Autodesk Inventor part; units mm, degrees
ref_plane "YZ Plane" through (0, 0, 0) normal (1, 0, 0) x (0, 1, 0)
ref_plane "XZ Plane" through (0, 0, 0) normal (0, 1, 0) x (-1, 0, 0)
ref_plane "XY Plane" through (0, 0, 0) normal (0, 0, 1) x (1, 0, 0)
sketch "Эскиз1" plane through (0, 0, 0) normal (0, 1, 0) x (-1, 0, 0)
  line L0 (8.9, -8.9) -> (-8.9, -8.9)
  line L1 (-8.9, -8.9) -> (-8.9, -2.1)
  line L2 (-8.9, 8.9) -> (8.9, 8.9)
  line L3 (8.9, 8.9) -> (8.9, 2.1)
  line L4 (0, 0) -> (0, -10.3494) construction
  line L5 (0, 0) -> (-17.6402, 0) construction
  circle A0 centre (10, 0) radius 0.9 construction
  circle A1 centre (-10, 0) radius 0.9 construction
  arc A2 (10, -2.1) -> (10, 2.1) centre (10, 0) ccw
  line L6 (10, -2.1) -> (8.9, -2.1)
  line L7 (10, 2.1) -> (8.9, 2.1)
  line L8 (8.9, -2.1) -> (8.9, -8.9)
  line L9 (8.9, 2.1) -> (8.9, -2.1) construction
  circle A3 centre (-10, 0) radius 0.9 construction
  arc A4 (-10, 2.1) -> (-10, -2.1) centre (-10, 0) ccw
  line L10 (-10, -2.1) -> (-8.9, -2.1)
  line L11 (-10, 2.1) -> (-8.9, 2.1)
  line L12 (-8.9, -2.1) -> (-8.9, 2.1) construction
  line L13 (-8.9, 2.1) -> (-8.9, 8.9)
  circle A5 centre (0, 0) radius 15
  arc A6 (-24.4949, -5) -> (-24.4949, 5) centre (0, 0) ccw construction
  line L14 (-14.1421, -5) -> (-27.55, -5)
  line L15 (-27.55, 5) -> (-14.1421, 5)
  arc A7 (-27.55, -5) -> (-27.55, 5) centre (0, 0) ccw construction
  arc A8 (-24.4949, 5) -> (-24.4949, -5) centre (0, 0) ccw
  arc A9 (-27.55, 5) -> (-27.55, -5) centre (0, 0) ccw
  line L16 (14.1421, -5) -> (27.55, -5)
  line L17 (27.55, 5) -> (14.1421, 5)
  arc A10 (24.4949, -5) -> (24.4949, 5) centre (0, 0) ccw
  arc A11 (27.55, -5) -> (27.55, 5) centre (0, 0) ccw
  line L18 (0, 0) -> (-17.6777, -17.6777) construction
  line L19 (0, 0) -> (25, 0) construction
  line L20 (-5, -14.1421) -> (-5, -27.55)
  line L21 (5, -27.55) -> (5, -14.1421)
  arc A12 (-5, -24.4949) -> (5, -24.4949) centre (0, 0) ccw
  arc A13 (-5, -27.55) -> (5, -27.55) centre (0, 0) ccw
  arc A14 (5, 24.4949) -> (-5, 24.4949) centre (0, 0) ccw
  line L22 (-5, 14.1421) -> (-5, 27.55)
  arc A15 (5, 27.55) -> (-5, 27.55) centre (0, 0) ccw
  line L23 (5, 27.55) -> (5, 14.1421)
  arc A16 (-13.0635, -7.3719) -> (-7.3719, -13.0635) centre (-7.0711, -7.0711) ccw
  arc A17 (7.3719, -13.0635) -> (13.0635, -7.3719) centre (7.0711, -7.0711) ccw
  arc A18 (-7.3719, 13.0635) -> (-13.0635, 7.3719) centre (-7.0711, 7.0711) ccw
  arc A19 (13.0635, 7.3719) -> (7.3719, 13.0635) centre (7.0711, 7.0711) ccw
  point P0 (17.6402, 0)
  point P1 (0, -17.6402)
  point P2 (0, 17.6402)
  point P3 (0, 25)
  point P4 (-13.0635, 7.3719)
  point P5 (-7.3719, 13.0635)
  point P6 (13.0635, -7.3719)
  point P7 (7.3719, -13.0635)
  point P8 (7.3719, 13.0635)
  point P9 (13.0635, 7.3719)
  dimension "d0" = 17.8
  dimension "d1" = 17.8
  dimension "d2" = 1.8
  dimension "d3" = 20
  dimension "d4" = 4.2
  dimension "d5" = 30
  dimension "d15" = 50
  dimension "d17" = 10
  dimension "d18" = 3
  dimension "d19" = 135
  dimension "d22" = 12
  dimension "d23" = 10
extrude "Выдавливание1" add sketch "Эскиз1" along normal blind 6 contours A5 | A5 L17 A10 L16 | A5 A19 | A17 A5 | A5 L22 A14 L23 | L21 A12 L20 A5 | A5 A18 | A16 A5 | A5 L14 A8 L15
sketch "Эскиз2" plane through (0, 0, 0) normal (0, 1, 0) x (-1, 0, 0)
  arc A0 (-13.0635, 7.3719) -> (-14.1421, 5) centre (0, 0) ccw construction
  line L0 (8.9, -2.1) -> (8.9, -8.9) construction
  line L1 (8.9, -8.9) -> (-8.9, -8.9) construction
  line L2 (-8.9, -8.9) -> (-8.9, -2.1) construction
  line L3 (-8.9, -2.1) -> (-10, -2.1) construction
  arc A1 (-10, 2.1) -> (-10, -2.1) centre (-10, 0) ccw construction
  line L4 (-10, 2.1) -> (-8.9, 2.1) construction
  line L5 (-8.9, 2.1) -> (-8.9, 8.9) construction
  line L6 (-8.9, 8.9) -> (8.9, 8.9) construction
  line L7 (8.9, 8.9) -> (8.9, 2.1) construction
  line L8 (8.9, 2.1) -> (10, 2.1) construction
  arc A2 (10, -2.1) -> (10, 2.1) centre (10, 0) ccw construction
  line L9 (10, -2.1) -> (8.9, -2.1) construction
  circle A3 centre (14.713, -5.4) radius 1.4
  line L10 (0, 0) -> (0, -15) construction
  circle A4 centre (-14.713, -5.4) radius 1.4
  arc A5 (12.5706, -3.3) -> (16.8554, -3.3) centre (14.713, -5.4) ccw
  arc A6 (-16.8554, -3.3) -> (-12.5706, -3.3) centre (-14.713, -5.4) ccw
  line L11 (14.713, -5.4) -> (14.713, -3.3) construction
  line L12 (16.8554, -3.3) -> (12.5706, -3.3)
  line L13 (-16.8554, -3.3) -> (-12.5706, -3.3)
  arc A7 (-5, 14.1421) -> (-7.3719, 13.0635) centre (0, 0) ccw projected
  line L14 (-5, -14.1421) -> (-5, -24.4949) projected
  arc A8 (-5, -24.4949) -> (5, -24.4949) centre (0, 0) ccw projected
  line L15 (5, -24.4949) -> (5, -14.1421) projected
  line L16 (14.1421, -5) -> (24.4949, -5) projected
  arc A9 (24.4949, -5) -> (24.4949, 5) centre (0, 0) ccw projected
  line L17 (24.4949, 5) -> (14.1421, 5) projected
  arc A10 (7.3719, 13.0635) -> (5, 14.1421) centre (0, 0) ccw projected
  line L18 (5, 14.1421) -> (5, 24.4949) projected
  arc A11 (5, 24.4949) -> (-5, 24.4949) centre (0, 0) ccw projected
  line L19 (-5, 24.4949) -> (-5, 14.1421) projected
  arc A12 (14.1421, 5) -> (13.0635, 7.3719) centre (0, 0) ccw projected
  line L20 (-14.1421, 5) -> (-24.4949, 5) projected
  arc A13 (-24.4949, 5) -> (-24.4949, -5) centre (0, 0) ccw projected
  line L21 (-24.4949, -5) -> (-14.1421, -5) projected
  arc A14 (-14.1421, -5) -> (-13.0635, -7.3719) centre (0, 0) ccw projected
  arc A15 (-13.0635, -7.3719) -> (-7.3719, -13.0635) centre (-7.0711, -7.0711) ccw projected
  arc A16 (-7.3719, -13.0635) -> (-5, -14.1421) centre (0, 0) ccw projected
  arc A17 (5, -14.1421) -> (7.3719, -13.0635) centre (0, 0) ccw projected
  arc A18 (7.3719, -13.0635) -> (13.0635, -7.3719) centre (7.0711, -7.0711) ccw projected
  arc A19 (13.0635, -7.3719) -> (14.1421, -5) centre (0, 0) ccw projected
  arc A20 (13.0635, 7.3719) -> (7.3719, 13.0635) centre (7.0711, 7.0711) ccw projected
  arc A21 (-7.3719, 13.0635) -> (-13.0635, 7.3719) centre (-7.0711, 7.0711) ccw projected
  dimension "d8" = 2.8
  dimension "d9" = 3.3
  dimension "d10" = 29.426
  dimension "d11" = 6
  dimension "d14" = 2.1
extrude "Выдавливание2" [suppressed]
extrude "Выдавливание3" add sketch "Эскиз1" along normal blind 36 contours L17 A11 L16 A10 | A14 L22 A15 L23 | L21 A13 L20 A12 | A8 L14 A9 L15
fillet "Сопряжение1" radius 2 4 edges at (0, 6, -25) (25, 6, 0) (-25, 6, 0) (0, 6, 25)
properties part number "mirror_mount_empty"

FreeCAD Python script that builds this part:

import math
import FreeCAD as App
import Part
import Sketcher
from FreeCAD import Vector


def edges_at(feature, points):
    """Names of the edges that pass closest to the given points."""
    edges = feature.Shape.Edges
    near = lambda p: min(range(len(edges)), key=lambda i: edges[i].distToShape(Part.Vertex(*p))[0])
    return sorted({f"Edge{near(p) + 1}" for p in points})

doc = App.newDocument("Part")
params = doc.addObject("Spreadsheet::Sheet", "Params")
for row, (alias, value) in enumerate([
    ("sketch1_radius", "15 mm"),
    ("sketch1_radius2", "25 mm"),
    ("sketch1_radius3", "6 mm"),
    ("sketch1_radius4", "2.1 mm"),
    ("sketch1_width", "17.8 mm"),
    ("pad1_length", "6 mm"),
    ("sketch2_radius", "25 mm"),
    ("sketch2_radius2", "28 mm"),
    ("pad2_length", "36 mm"),
    ("fillet_radius", "2 mm"),
], start=1):
    params.set(f"A{row}", alias)
    params.set(f"B{row}", "=" + value)
    params.setAlias(f"B{row}", alias)

body = doc.addObject("PartDesign::Body", "Body")

# Sketch on XZ plane
sketch1 = body.newObject("Sketcher::SketchObject", "Sketch")
sketch1.AttachmentSupport = (doc.getObject("XZ_Plane"), [""])
sketch1.MapMode = "FlatFace"
sketch1.addGeometry([
    Part.ArcOfCircle(Part.Circle(Vector(0, 0, 0), Vector(0, 0, 1), 15), math.radians(-160.53), math.radians(-150.56)),  # 0
    Part.LineSegment(Vector(-14.1, -5, 0), Vector(-24.5, -5, 0)),  # 1
    Part.ArcOfCircle(Part.Circle(Vector(0, 0, 0), Vector(0, 0, 1), 25), math.radians(168), math.radians(192)),  # 2
    Part.LineSegment(Vector(-24.5, 5, 0), Vector(-14.1, 5, 0)),  # 3
    Part.ArcOfCircle(Part.Circle(Vector(0, 0, 0), Vector(0, 0, 1), 15), math.radians(150.56), math.radians(160.53)),  # 4
    Part.ArcOfCircle(Part.Circle(Vector(-7.1, 7.1, 0), Vector(0, 0, 1), 6), math.radians(93), math.radians(177)),  # 5
    Part.ArcOfCircle(Part.Circle(Vector(0, 0, 0), Vector(0, 0, 1), 15), math.radians(109.47), math.radians(119.44)),  # 6
    Part.LineSegment(Vector(-5, 14.1, 0), Vector(-5, 24.5, 0)),  # 7
    Part.ArcOfCircle(Part.Circle(Vector(0, 0, 0), Vector(0, 0, 1), 25), math.radians(78), math.radians(102)),  # 8
    Part.LineSegment(Vector(5, 24.5, 0), Vector(5, 14.1, 0)),  # 9
    Part.ArcOfCircle(Part.Circle(Vector(0, 0, 0), Vector(0, 0, 1), 15), math.radians(60.56), math.radians(70.53)),  # 10
    Part.ArcOfCircle(Part.Circle(Vector(7.1, 7.1, 0), Vector(0, 0, 1), 6), math.radians(3), math.radians(87)),  # 11
    Part.ArcOfCircle(Part.Circle(Vector(0, 0, 0), Vector(0, 0, 1), 15), math.radians(19.47), math.radians(29.44)),  # 12
    Part.LineSegment(Vector(14.1, 5, 0), Vector(24.5, 5, 0)),  # 13
    Part.ArcOfCircle(Part.Circle(Vector(0, 0, 0), Vector(0, 0, 1), 25), math.radians(-12), math.radians(12)),  # 14
    Part.LineSegment(Vector(24.5, -5, 0), Vector(14.1, -5, 0)),  # 15
    Part.ArcOfCircle(Part.Circle(Vector(0, 0, 0), Vector(0, 0, 1), 15), math.radians(-29.44), math.radians(-19.47)),  # 16
    Part.ArcOfCircle(Part.Circle(Vector(7.1, -7.1, 0), Vector(0, 0, 1), 6), math.radians(-87), math.radians(-3)),  # 17
    Part.ArcOfCircle(Part.Circle(Vector(0, 0, 0), Vector(0, 0, 1), 15), math.radians(-70.53), math.radians(-60.56)),  # 18
    Part.LineSegment(Vector(5, -14.1, 0), Vector(5, -24.5, 0)),  # 19
    Part.ArcOfCircle(Part.Circle(Vector(0, 0, 0), Vector(0, 0, 1), 25), math.radians(-102), math.radians(-78)),  # 20
    Part.LineSegment(Vector(-5, -24.5, 0), Vector(-5, -14.1, 0)),  # 21
    Part.ArcOfCircle(Part.Circle(Vector(0, 0, 0), Vector(0, 0, 1), 15), math.radians(-119.44), math.radians(-109.47)),  # 22
    Part.ArcOfCircle(Part.Circle(Vector(-7.1, -7.1, 0), Vector(0, 0, 1), 6), math.radians(-177), math.radians(-93)),  # 23
    Part.LineSegment(Vector(-8.9, -2.1, 0), Vector(-8.9, -8.9, 0)),  # 24
    Part.LineSegment(Vector(-8.9, -8.9, 0), Vector(8.9, -8.9, 0)),  # 25
    Part.LineSegment(Vector(8.9, -8.9, 0), Vector(8.9, -2.1, 0)),  # 26
    Part.LineSegment(Vector(8.9, -2.1, 0), Vector(10, -2.1, 0)),  # 27
    Part.ArcOfCircle(Part.Circle(Vector(10, 0, 0), Vector(0, 0, 1), 2.1), math.radians(-90), math.radians(90)),  # 28
    Part.LineSegment(Vector(10, 2.1, 0), Vector(8.9, 2.1, 0)),  # 29
    Part.LineSegment(Vector(8.9, 2.1, 0), Vector(8.9, 8.9, 0)),  # 30
    Part.LineSegment(Vector(8.9, 8.9, 0), Vector(-8.9, 8.9, 0)),  # 31
    Part.LineSegment(Vector(-8.9, 8.9, 0), Vector(-8.9, 2.1, 0)),  # 32
    Part.LineSegment(Vector(-8.9, 2.1, 0), Vector(-10, 2.1, 0)),  # 33
    Part.ArcOfCircle(Part.Circle(Vector(-10, 0, 0), Vector(0, 0, 1), 2.1), math.radians(90), math.radians(270)),  # 34
    Part.LineSegment(Vector(-10, -2.1, 0), Vector(-8.9, -2.1, 0)),  # 35
], False)
sketch1.addConstraint([
    Sketcher.Constraint("Coincident", 0, 1, 1, 1),
    Sketcher.Constraint("Coincident", 1, 2, 2, 2),
    Sketcher.Constraint("Coincident", 2, 1, 3, 1),
    Sketcher.Constraint("Coincident", 3, 2, 4, 2),
    Sketcher.Constraint("Coincident", 4, 1, 5, 2),
    Sketcher.Constraint("Coincident", 5, 1, 6, 2),
    Sketcher.Constraint("Coincident", 6, 1, 7, 1),
    Sketcher.Constraint("Coincident", 7, 2, 8, 2),
    Sketcher.Constraint("Coincident", 8, 1, 9, 1),
    Sketcher.Constraint("Coincident", 9, 2, 10, 2),
    Sketcher.Constraint("Coincident", 10, 1, 11, 2),
    Sketcher.Constraint("Coincident", 11, 1, 12, 2),
    Sketcher.Constraint("Coincident", 12, 1, 13, 1),
    Sketcher.Constraint("Coincident", 13, 2, 14, 2),
    Sketcher.Constraint("Coincident", 14, 1, 15, 1),
    Sketcher.Constraint("Coincident", 15, 2, 16, 2),
    Sketcher.Constraint("Coincident", 16, 1, 17, 2),
    Sketcher.Constraint("Coincident", 17, 1, 18, 2),
    Sketcher.Constraint("Coincident", 18, 1, 19, 1),
    Sketcher.Constraint("Coincident", 19, 2, 20, 2),
    Sketcher.Constraint("Coincident", 20, 1, 21, 1),
    Sketcher.Constraint("Coincident", 21, 2, 22, 2),
    Sketcher.Constraint("Coincident", 22, 1, 23, 2),
    Sketcher.Constraint("Coincident", 23, 1, 0, 2),
    Sketcher.Constraint("Coincident", 24, 2, 25, 1),
    Sketcher.Constraint("Coincident", 25, 2, 26, 1),
    Sketcher.Constraint("Coincident", 26, 2, 27, 1),
    Sketcher.Constraint("Tangent", 27, 2, 28, 1),
    Sketcher.Constraint("Tangent", 28, 2, 29, 1),
    Sketcher.Constraint("Coincident", 29, 2, 30, 1),
    Sketcher.Constraint("Coincident", 30, 2, 31, 1),
    Sketcher.Constraint("Coincident", 31, 2, 32, 1),
    Sketcher.Constraint("Coincident", 32, 2, 33, 1),
    Sketcher.Constraint("Tangent", 33, 2, 34, 1),
    Sketcher.Constraint("Tangent", 34, 2, 35, 1),
    Sketcher.Constraint("Coincident", 35, 2, 24, 1),
    Sketcher.Constraint("Horizontal", 1),
    Sketcher.Constraint("Horizontal", 3),
    Sketcher.Constraint("Vertical", 7),
    Sketcher.Constraint("Vertical", 9),
    Sketcher.Constraint("Horizontal", 13),
    Sketcher.Constraint("Horizontal", 15),
    Sketcher.Constraint("Vertical", 19),
    Sketcher.Constraint("Vertical", 21),
    Sketcher.Constraint("Vertical", 24),
    Sketcher.Constraint("Horizontal", 25),
    Sketcher.Constraint("Vertical", 26),
    Sketcher.Constraint("Horizontal", 27),
    Sketcher.Constraint("Horizontal", 29),
    Sketcher.Constraint("Vertical", 30),
    Sketcher.Constraint("Horizontal", 31),
    Sketcher.Constraint("Vertical", 32),
    Sketcher.Constraint("Horizontal", 33),
    Sketcher.Constraint("Horizontal", 35),
    Sketcher.Constraint("Coincident", 0, 3, -1, 1),
    Sketcher.Constraint("Coincident", 2, 3, -1, 1),
    Sketcher.Constraint("Coincident", 4, 3, -1, 1),
    Sketcher.Constraint("Coincident", 6, 3, -1, 1),
    Sketcher.Constraint("Coincident", 8, 3, -1, 1),
    Sketcher.Constraint("Coincident", 10, 3, -1, 1),
    Sketcher.Constraint("Coincident", 12, 3, -1, 1),
    Sketcher.Constraint("Coincident", 14, 3, -1, 1),
    Sketcher.Constraint("Coincident", 16, 3, -1, 1),
    Sketcher.Constraint("Coincident", 18, 3, -1, 1),
    Sketcher.Constraint("Coincident", 20, 3, -1, 1),
    Sketcher.Constraint("Coincident", 22, 3, -1, 1),
    Sketcher.Constraint("Equal", 0, 4),
    Sketcher.Constraint("Equal", 4, 6),
    Sketcher.Constraint("Equal", 2, 8),
    Sketcher.Constraint("Equal", 6, 10),
    Sketcher.Constraint("Equal", 5, 11),
    Sketcher.Constraint("Equal", 10, 12),
    Sketcher.Constraint("Equal", 8, 14),
    Sketcher.Constraint("Equal", 12, 16),
    Sketcher.Constraint("Equal", 11, 17),
    Sketcher.Constraint("Equal", 16, 18),
    Sketcher.Constraint("Equal", 14, 20),
    Sketcher.Constraint("Equal", 18, 22),
    Sketcher.Constraint("Equal", 17, 23),
    Sketcher.Constraint("Equal", 28, 34),
    Sketcher.Constraint("Symmetric", 5, 3, 17, 3, -1, 1),
    Sketcher.Constraint("Symmetric", 11, 3, 23, 3, -1, 1),
    Sketcher.Constraint("Symmetric", 28, 3, 34, 3, -1, 1),
    Sketcher.Constraint("Symmetric", 24, 2, 30, 2, -1, 1),
    Sketcher.Constraint("Symmetric", 5, 3, 11, 3, -2),
    Sketcher.Constraint("Symmetric", 29, 2, 32, 2, -2),
    Sketcher.Constraint("Horizontal", 7, 2, 8, 1),
    Sketcher.Constraint("Horizontal", 3, 2, 12, 1),
    Sketcher.Constraint("Horizontal", 1, 2, 14, 1),
    Sketcher.Constraint("Horizontal", 19, 2, 20, 1),
    Sketcher.Constraint("Vertical", 1, 2, 2, 1),
    Sketcher.Constraint("Vertical", 9, 2, 18, 1),
    Sketcher.Constraint("Vertical", 26, 2, 29, 2),
    Sketcher.Constraint("Equal", 15, 7),
    Sketcher.Constraint("Radius", 0, 15.0),
    Sketcher.Constraint("Radius", 2, 25.0),
    Sketcher.Constraint("Radius", 5, 6.0),
    Sketcher.Constraint("Radius", 28, 2.1),
    Sketcher.Constraint("DistanceX", 25, 1, 25, 2, 17.8),
    Sketcher.Constraint("DistanceX", -1, 1, 28, 3, 10.0),
    Sketcher.Constraint("DistanceY", 1, 2, 2, 1, 10.0),
    Sketcher.Constraint("DistanceY", 24, 2, 24, 1, 6.8),
    Sketcher.Constraint("DistanceX", 5, 3, -1, 1, 7.071),
    Sketcher.Constraint("DistanceY", -1, 1, 5, 3, 7.071),
])
sketch1.setExpression("Constraints[94]", "Params.sketch1_radius")
sketch1.setExpression("Constraints[95]", "Params.sketch1_radius2")
sketch1.setExpression("Constraints[96]", "Params.sketch1_radius3")
sketch1.setExpression("Constraints[97]", "Params.sketch1_radius4")
sketch1.setExpression("Constraints[98]", "Params.sketch1_width")
pad1 = body.newObject("PartDesign::Pad", "Pad")
pad1.Profile = sketch1
pad1.setExpression("Length", "Params.pad1_length")
pad1.Reversed = True

# Sketch on XZ plane
sketch2 = body.newObject("Sketcher::SketchObject", "Sketch001")
sketch2.AttachmentSupport = (doc.getObject("XZ_Plane"), [""])
sketch2.MapMode = "FlatFace"
sketch2.addGeometry([
    Part.LineSegment(Vector(-27.6, 5, 0), Vector(-24.5, 5, 0)),  # 0
    Part.ArcOfCircle(Part.Circle(Vector(0, 0, 0), Vector(0, 0, 1), 25), math.radians(168), math.radians(192)),  # 1
    Part.LineSegment(Vector(-24.5, -5, 0), Vector(-27.6, -5, 0)),  # 2
    Part.ArcOfCircle(Part.Circle(Vector(0, 0, 0), Vector(0, 0, 1), 28), math.radians(170), math.radians(190)),  # 3
    Part.ArcOfCircle(Part.Circle(Vector(0, 0, 0), Vector(0, 0, 1), 25), math.radians(78), math.radians(102)),  # 4
    Part.LineSegment(Vector(-5, 24.5, 0), Vector(-5, 27.6, 0)),  # 5
    Part.ArcOfCircle(Part.Circle(Vector(0, 0, 0), Vector(0, 0, 1), 28), math.radians(80), math.radians(100)),  # 6
    Part.LineSegment(Vector(5, 27.6, 0), Vector(5, 24.5, 0)),  # 7
    Part.LineSegment(Vector(-5, -27.6, 0), Vector(-5, -24.5, 0)),  # 8
    Part.ArcOfCircle(Part.Circle(Vector(0, 0, 0), Vector(0, 0, 1), 25), math.radians(-102), math.radians(-78)),  # 9
    Part.LineSegment(Vector(5, -24.5, 0), Vector(5, -27.6, 0)),  # 10
    Part.ArcOfCircle(Part.Circle(Vector(0, 0, 0), Vector(0, 0, 1), 28), math.radians(-100), math.radians(-80)),  # 11
    Part.ArcOfCircle(Part.Circle(Vector(0, 0, 0), Vector(0, 0, 1), 25), math.radians(-12), math.radians(12)),  # 12
    Part.LineSegment(Vector(24.5, 5, 0), Vector(27.6, 5, 0)),  # 13
    Part.ArcOfCircle(Part.Circle(Vector(0, 0, 0), Vector(0, 0, 1), 28), math.radians(-10), math.radians(10)),  # 14
    Part.LineSegment(Vector(27.6, -5, 0), Vector(24.5, -5, 0)),  # 15
], False)
sketch2.addConstraint([
    Sketcher.Constraint("Coincident", 0, 2, 1, 1),
    Sketcher.Constraint("Coincident", 1, 2, 2, 1),
    Sketcher.Constraint("Coincident", 2, 2, 3, 2),
    Sketcher.Constraint("Coincident", 3, 1, 0, 1),
    Sketcher.Constraint("Coincident", 4, 2, 5, 1),
    Sketcher.Constraint("Coincident", 5, 2, 6, 2),
    Sketcher.Constraint("Coincident", 6, 1, 7, 1),
    Sketcher.Constraint("Coincident", 7, 2, 4, 1),
    Sketcher.Constraint("Coincident", 8, 2, 9, 1),
    Sketcher.Constraint("Coincident", 9, 2, 10, 1),
    Sketcher.Constraint("Coincident", 10, 2, 11, 2),
    Sketcher.Constraint("Coincident", 11, 1, 8, 1),
    Sketcher.Constraint("Coincident", 12, 2, 13, 1),
    Sketcher.Constraint("Coincident", 13, 2, 14, 2),
    Sketcher.Constraint("Coincident", 14, 1, 15, 1),
    Sketcher.Constraint("Coincident", 15, 2, 12, 1),
    Sketcher.Constraint("Horizontal", 0),
    Sketcher.Constraint("Horizontal", 2),
    Sketcher.Constraint("Vertical", 5),
    Sketcher.Constraint("Vertical", 7),
    Sketcher.Constraint("Vertical", 8),
    Sketcher.Constraint("Vertical", 10),
    Sketcher.Constraint("Horizontal", 13),
    Sketcher.Constraint("Horizontal", 15),
    Sketcher.Constraint("Coincident", 1, 3, -1, 1),
    Sketcher.Constraint("Coincident", 3, 3, -1, 1),
    Sketcher.Constraint("Coincident", 4, 3, -1, 1),
    Sketcher.Constraint("Coincident", 6, 3, -1, 1),
    Sketcher.Constraint("Coincident", 9, 3, -1, 1),
    Sketcher.Constraint("Coincident", 11, 3, -1, 1),
    Sketcher.Constraint("Coincident", 12, 3, -1, 1),
    Sketcher.Constraint("Coincident", 14, 3, -1, 1),
    Sketcher.Constraint("Equal", 1, 4),
    Sketcher.Constraint("Equal", 3, 6),
    Sketcher.Constraint("Equal", 4, 9),
    Sketcher.Constraint("Equal", 6, 11),
    Sketcher.Constraint("Equal", 9, 12),
    Sketcher.Constraint("Equal", 11, 14),
    Sketcher.Constraint("Horizontal", 5, 2, 6, 1),
    Sketcher.Constraint("Horizontal", 8, 2, 9, 2),
    Sketcher.Constraint("Horizontal", 3, 1, 12, 2),
    Sketcher.Constraint("Horizontal", 2, 2, 14, 1),
    Sketcher.Constraint("Vertical", 0, 2, 1, 2),
    Sketcher.Constraint("Vertical", 5, 2, 8, 2),
    Sketcher.Constraint("Equal", 15, 5),
    Sketcher.Constraint("Radius", 1, 25.0),
    Sketcher.Constraint("Radius", 3, 28.0),
    Sketcher.Constraint("DistanceY", 1, 2, 0, 2, 10.0),
])
sketch2.setExpression("Constraints[45]", "Params.sketch2_radius")
sketch2.setExpression("Constraints[46]", "Params.sketch2_radius2")
pad2 = body.newObject("PartDesign::Pad", "Pad001")
pad2.Profile = sketch2
pad2.setExpression("Length", "Params.pad2_length")
pad2.Reversed = True
doc.recompute()

fillet = body.newObject("PartDesign::Fillet", "Fillet")
fillet.Base = (pad2, edges_at(pad2, [
    (0, 6, -25),
    (25, 6, 0),
    (-25, 6, 0),
    (0, 6, 25),
]))
fillet.setExpression("Radius", "Params.fillet_radius")

doc.recompute()
